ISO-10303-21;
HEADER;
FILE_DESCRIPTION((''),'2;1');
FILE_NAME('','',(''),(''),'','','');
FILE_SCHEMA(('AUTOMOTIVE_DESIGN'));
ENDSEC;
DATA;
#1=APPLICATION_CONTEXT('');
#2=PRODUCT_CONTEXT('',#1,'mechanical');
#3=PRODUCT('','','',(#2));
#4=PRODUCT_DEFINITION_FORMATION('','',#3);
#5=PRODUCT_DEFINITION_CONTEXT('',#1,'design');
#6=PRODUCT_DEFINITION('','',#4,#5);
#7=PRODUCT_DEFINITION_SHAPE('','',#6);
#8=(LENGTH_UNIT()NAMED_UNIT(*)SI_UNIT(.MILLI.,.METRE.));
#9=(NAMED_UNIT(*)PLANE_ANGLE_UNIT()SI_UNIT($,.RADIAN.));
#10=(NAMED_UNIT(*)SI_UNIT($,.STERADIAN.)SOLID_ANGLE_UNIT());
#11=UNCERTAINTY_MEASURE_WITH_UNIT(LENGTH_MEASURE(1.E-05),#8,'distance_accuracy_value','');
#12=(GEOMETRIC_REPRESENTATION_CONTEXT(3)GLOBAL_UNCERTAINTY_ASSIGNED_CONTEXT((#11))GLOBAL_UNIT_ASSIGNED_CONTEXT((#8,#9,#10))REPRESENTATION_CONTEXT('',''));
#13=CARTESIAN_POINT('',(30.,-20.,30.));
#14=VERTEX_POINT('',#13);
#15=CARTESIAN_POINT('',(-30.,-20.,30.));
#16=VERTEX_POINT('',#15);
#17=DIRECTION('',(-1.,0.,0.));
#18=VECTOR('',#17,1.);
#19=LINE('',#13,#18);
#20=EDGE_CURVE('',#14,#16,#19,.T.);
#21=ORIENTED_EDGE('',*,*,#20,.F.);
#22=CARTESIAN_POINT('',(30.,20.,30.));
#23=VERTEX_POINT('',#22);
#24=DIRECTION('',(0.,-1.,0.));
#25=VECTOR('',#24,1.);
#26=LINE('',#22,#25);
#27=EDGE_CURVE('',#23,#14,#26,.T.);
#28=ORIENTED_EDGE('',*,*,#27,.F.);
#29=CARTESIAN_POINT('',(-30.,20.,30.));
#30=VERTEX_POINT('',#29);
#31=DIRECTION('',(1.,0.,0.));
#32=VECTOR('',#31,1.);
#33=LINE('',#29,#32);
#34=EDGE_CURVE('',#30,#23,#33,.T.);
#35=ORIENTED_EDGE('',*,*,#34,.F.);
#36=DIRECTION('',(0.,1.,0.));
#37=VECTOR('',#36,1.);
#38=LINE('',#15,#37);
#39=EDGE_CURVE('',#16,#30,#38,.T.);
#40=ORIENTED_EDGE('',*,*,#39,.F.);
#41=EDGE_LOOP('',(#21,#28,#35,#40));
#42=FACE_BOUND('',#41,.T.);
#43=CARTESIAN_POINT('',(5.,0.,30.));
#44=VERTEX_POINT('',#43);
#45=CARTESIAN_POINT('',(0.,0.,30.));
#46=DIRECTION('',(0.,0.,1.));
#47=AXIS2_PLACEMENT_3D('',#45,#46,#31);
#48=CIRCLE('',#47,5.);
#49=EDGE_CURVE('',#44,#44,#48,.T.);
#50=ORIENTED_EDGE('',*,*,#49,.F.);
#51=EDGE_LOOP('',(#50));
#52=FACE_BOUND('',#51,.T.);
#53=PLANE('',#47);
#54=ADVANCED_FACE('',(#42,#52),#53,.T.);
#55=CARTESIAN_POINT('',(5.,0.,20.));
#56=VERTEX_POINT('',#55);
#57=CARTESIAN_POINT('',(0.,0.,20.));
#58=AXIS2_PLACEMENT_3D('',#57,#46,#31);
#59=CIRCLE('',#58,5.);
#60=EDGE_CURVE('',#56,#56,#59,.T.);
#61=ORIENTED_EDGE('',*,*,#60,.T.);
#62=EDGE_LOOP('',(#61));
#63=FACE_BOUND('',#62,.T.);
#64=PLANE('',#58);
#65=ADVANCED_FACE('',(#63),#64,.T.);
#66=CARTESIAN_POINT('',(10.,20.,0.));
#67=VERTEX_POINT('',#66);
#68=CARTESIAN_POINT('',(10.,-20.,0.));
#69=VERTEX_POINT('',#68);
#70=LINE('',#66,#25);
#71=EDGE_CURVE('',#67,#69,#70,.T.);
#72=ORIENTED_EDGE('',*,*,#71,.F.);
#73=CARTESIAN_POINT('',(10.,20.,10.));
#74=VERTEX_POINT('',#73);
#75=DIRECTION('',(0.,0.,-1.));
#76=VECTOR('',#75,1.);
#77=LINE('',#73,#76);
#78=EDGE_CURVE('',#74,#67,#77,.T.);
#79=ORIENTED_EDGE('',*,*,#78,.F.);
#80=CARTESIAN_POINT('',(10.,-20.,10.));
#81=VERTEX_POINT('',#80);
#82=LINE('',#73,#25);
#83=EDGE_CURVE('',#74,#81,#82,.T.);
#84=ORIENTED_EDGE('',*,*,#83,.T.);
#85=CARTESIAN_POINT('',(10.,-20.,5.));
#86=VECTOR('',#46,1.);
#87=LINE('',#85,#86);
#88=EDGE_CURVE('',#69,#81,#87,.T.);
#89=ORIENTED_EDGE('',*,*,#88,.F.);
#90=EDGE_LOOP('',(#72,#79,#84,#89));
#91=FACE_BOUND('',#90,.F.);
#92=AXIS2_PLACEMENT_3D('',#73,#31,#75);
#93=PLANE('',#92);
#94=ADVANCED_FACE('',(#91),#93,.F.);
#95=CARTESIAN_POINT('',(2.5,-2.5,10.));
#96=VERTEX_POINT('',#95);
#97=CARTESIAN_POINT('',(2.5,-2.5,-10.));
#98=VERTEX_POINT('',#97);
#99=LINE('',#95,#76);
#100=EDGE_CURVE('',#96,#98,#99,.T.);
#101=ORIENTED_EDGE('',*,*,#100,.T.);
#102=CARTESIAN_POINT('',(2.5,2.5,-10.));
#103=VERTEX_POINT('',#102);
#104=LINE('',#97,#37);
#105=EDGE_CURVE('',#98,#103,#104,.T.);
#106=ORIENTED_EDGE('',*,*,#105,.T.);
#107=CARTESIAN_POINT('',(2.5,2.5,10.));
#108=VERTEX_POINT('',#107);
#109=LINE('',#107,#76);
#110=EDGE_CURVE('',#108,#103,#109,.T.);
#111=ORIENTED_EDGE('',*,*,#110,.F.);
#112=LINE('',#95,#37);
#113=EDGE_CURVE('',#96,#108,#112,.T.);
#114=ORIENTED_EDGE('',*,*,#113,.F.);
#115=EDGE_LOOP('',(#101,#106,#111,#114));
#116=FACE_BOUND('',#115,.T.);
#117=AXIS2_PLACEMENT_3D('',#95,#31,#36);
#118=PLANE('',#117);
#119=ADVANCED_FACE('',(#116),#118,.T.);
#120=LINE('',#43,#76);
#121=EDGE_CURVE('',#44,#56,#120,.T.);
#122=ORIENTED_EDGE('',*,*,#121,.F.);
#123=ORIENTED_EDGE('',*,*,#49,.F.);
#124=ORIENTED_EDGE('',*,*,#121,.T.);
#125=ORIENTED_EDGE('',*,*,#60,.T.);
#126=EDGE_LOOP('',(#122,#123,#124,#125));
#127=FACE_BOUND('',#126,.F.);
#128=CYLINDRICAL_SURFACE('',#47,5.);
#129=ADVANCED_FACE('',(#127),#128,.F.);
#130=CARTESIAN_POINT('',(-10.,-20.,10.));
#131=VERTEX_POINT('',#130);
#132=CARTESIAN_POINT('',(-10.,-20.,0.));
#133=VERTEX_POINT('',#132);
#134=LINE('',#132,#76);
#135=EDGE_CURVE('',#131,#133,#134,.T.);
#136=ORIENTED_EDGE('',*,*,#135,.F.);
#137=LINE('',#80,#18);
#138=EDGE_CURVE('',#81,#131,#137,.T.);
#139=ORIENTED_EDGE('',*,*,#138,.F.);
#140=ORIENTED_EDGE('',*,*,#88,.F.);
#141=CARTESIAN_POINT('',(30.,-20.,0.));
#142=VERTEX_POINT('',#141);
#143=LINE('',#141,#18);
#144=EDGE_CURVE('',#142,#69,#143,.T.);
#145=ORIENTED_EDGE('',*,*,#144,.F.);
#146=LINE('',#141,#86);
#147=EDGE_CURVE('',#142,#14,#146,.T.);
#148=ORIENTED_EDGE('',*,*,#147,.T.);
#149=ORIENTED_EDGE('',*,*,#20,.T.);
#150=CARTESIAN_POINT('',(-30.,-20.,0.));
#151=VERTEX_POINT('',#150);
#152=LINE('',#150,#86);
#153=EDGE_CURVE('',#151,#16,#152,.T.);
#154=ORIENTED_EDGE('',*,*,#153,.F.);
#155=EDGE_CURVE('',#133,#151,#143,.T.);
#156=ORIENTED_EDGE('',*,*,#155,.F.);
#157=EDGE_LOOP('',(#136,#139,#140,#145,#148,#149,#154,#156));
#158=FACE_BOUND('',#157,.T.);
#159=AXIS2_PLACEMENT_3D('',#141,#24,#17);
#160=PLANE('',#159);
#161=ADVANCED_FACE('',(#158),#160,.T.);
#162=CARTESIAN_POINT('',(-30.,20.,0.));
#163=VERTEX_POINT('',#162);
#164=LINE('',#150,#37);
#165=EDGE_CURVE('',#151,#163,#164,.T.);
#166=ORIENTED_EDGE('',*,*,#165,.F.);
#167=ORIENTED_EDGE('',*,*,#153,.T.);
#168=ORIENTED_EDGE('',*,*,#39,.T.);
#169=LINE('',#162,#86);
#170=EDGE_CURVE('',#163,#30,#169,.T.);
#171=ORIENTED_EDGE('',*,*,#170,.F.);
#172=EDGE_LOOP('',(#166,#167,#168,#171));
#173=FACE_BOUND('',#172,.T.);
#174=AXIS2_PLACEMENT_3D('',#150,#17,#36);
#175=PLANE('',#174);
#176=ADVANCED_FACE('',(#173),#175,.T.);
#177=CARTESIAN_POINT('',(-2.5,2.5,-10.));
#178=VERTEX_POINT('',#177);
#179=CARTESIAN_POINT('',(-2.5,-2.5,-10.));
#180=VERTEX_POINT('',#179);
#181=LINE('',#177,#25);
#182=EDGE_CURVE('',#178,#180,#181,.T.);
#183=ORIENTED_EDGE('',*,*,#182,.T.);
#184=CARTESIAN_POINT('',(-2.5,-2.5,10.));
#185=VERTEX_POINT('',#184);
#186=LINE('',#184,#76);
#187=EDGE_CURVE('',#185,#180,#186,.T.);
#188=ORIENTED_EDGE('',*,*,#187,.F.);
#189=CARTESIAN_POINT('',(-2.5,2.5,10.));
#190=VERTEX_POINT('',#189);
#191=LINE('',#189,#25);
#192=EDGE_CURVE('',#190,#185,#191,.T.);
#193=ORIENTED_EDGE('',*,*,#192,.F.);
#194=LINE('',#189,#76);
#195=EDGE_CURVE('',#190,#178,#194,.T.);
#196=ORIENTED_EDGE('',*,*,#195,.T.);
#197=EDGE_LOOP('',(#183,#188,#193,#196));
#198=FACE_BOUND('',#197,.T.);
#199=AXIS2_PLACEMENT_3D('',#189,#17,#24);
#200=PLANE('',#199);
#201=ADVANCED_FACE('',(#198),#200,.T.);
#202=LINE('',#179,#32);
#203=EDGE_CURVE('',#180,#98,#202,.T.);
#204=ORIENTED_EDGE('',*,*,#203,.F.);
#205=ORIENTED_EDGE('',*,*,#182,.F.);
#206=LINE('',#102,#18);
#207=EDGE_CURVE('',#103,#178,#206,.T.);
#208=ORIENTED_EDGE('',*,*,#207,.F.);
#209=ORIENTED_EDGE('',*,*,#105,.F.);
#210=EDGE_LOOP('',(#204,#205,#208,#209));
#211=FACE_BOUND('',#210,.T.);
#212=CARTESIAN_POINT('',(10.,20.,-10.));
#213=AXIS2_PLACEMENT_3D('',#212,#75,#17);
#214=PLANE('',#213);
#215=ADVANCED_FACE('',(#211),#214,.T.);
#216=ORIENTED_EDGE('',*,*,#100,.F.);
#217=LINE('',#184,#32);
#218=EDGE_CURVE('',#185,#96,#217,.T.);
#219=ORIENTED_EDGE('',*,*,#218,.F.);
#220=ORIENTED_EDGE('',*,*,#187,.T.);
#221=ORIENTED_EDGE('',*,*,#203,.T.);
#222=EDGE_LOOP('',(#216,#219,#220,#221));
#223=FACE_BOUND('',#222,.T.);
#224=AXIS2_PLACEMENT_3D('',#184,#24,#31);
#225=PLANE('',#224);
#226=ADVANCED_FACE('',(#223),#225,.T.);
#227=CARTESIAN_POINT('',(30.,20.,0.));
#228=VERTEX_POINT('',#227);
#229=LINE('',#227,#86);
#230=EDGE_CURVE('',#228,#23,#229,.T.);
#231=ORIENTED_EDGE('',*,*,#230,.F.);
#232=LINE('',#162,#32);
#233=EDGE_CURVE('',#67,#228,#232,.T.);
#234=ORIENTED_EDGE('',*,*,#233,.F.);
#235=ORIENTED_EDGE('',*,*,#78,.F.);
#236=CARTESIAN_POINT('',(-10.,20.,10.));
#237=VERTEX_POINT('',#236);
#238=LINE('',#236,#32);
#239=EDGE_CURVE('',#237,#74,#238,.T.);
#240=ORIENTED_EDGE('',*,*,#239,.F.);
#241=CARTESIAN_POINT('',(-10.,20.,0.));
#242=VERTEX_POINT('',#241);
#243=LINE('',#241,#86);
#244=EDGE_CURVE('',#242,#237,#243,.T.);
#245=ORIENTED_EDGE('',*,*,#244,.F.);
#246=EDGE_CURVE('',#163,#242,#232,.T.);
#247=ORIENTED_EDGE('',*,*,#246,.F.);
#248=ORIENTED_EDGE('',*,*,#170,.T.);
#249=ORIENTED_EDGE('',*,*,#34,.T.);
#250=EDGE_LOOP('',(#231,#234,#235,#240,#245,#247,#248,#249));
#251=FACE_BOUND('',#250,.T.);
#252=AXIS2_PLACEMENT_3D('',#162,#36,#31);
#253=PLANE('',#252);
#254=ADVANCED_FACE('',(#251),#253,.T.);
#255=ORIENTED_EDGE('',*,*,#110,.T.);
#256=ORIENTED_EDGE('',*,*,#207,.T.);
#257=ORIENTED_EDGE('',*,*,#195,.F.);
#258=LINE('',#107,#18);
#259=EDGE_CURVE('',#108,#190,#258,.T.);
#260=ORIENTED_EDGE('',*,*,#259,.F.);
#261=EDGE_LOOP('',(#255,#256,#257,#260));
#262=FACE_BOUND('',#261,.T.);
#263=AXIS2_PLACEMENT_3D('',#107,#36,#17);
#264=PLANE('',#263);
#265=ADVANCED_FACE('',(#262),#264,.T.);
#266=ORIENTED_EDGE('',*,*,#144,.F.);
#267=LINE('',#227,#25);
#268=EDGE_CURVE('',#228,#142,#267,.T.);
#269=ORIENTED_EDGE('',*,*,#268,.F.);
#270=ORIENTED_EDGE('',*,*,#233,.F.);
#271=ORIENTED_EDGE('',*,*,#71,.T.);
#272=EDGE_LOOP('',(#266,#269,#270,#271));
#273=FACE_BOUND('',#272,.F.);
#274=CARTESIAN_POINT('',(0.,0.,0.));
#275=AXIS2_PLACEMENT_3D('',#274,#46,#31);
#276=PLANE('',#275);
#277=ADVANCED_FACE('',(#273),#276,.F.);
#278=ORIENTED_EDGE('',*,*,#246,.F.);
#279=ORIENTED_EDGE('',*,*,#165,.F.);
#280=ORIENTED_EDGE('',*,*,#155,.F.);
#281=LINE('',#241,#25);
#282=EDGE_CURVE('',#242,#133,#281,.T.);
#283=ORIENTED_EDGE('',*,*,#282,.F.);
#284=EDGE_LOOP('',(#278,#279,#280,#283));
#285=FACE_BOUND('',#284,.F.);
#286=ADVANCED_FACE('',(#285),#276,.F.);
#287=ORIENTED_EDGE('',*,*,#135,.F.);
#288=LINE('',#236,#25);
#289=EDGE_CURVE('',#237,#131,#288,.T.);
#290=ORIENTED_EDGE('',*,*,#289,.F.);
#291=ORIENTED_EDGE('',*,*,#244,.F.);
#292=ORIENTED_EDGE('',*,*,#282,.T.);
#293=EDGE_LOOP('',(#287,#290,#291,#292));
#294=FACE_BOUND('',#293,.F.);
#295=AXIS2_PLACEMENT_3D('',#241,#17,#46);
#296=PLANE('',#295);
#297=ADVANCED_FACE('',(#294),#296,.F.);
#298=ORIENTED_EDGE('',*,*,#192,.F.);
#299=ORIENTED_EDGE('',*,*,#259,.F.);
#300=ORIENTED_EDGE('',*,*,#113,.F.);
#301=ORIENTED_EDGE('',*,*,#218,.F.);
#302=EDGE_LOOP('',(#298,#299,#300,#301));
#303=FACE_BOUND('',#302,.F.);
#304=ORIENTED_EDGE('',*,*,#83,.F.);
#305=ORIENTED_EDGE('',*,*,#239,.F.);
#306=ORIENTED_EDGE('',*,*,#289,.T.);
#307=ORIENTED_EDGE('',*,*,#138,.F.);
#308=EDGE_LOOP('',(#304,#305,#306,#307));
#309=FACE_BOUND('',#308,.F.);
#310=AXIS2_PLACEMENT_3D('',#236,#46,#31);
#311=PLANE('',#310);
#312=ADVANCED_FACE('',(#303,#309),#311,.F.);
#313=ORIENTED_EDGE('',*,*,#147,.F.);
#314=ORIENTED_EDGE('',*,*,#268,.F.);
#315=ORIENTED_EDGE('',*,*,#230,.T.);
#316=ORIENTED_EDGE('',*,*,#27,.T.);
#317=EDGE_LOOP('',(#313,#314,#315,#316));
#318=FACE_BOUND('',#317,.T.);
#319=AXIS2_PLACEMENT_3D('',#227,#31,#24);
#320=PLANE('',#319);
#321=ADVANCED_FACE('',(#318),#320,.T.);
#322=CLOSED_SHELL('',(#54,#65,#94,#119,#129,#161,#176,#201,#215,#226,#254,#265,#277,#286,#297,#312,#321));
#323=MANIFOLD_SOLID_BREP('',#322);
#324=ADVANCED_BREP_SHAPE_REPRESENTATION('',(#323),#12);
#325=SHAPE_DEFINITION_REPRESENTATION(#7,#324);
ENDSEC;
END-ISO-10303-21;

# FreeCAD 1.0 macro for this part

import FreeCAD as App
import Part
import Sketcher
Q = App.Units.Quantity

doc = App.newDocument("Part")
body = doc.addObject("PartDesign::Body", "Body")

sketch1 = body.newObject("Sketcher::SketchObject", "Sketch")
sketch1.AttachmentSupport = (doc.getObject("XY_Plane"), [""])
sketch1.MapMode = "FlatFace"
sketch1.addGeometry(Part.LineSegment(App.Vector(30, 20, 0), App.Vector(-30, 20, 0)), False)
sketch1.addGeometry(Part.LineSegment(App.Vector(-30, 20, 0), App.Vector(-30, -20, 0)), False)
sketch1.addGeometry(Part.LineSegment(App.Vector(-30, -20, 0), App.Vector(30, -20, 0)), False)
sketch1.addGeometry(Part.LineSegment(App.Vector(30, -20, 0), App.Vector(30, 20, 0)), False)
sketch1.addConstraint(Sketcher.Constraint("Coincident", 0, 2, 1, 1))
sketch1.addConstraint(Sketcher.Constraint("Coincident", 1, 2, 2, 1))
sketch1.addConstraint(Sketcher.Constraint("Coincident", 2, 2, 3, 1))
sketch1.addConstraint(Sketcher.Constraint("Coincident", 3, 2, 0, 1))
sketch1.addConstraint(Sketcher.Constraint("Horizontal", 0))
sketch1.addConstraint(Sketcher.Constraint("Vertical", 1))
sketch1.addConstraint(Sketcher.Constraint("Horizontal", 2))
sketch1.addConstraint(Sketcher.Constraint("Vertical", 3))
sketch1.addConstraint(Sketcher.Constraint("Symmetric", 0, 2, 2, 2, -1, 1))
sketch1.addConstraint(Sketcher.Constraint("DistanceX", 0, 2, 0, 1, Q("60 mm")))
sketch1.addConstraint(Sketcher.Constraint("DistanceY", 1, 2, 1, 1, Q("40 mm")))
pad1 = body.newObject("PartDesign::Pad", "Pad")
pad1.Profile = sketch1
pad1.Length = 30

sketch2 = body.newObject("Sketcher::SketchObject", "Sketch001")
sketch2.AttachmentSupport = (doc.getObject("XZ_Plane"), [""])
sketch2.MapMode = "FlatFace"
sketch2.AttachmentOffset = App.Placement(App.Vector(0, 0, -20), App.Rotation())
sketch2.addGeometry(Part.LineSegment(App.Vector(10, 0, 0), App.Vector(-10, 0, 0)), False)
sketch2.addGeometry(Part.LineSegment(App.Vector(-10, 0, 0), App.Vector(-10, 10, 0)), False)
sketch2.addGeometry(Part.LineSegment(App.Vector(-10, 10, 0), App.Vector(10, 10, 0)), False)
sketch2.addGeometry(Part.LineSegment(App.Vector(10, 10, 0), App.Vector(10, 0, 0)), False)
sketch2.addConstraint(Sketcher.Constraint("Coincident", 0, 2, 1, 1))
sketch2.addConstraint(Sketcher.Constraint("Coincident", 1, 2, 2, 1))
sketch2.addConstraint(Sketcher.Constraint("Coincident", 2, 2, 3, 1))
sketch2.addConstraint(Sketcher.Constraint("Coincident", 3, 2, 0, 1))
sketch2.addConstraint(Sketcher.Constraint("Horizontal", 0))
sketch2.addConstraint(Sketcher.Constraint("Vertical", 1))
sketch2.addConstraint(Sketcher.Constraint("Horizontal", 2))
sketch2.addConstraint(Sketcher.Constraint("Vertical", 3))
sketch2.addConstraint(Sketcher.Constraint("Symmetric", 0, 2, 3, 2, -1, 1))
sketch2.addConstraint(Sketcher.Constraint("DistanceX", 0, 2, 0, 1, Q("20 mm")))
sketch2.addConstraint(Sketcher.Constraint("DistanceY", 1, 1, 1, 2, Q("10 mm")))
pocket1 = body.newObject("PartDesign::Pocket", "Pocket")
pocket1.Profile = sketch2
pocket1.Type = "ThroughAll"
pocket1.Reversed = True

sketch3 = body.newObject("Sketcher::SketchObject", "Sketch002")
sketch3.AttachmentSupport = (doc.getObject("XY_Plane"), [""])
sketch3.MapMode = "FlatFace"
sketch3.AttachmentOffset = App.Placement(App.Vector(0, 0, 10), App.Rotation())
sketch3.addGeometry(Part.LineSegment(App.Vector(2.5, -2.5, 0), App.Vector(-2.5, -2.5, 0)), False)
sketch3.addGeometry(Part.LineSegment(App.Vector(-2.5, -2.5, 0), App.Vector(-2.5, 2.5, 0)), False)
sketch3.addGeometry(Part.LineSegment(App.Vector(-2.5, 2.5, 0), App.Vector(2.5, 2.5, 0)), False)
sketch3.addGeometry(Part.LineSegment(App.Vector(2.5, 2.5, 0), App.Vector(2.5, -2.5, 0)), False)
sketch3.addConstraint(Sketcher.Constraint("Coincident", 0, 2, 1, 1))
sketch3.addConstraint(Sketcher.Constraint("Coincident", 1, 2, 2, 1))
sketch3.addConstraint(Sketcher.Constraint("Coincident", 2, 2, 3, 1))
sketch3.addConstraint(Sketcher.Constraint("Coincident", 3, 2, 0, 1))
sketch3.addConstraint(Sketcher.Constraint("Horizontal", 0))
sketch3.addConstraint(Sketcher.Constraint("Vertical", 1))
sketch3.addConstraint(Sketcher.Constraint("Horizontal", 2))
sketch3.addConstraint(Sketcher.Constraint("Vertical", 3))
sketch3.addConstraint(Sketcher.Constraint("Symmetric", 0, 2, 2, 2, -1, 1))
sketch3.addConstraint(Sketcher.Constraint("Equal", 2, 1))
sketch3.addConstraint(Sketcher.Constraint("DistanceX", 0, 2, 0, 1, Q("5 mm")))
pad2 = body.newObject("PartDesign::Pad", "Pad001")
pad2.Profile = sketch3
pad2.Length = 20
pad2.Reversed = True

sketch4 = body.newObject("Sketcher::SketchObject", "Sketch003")
sketch4.AttachmentSupport = (doc.getObject("XY_Plane"), [""])
sketch4.MapMode = "FlatFace"
sketch4.AttachmentOffset = App.Placement(App.Vector(0, 0, 30), App.Rotation())
sketch4.addGeometry(Part.Circle(App.Vector(0, 0, 0), App.Vector(0, 0, 1), 5), False)
sketch4.addConstraint(Sketcher.Constraint("Coincident", 0, 3, -1, 1))
sketch4.addConstraint(Sketcher.Constraint("Diameter", 0, Q("10 mm")))
pocket2 = body.newObject("PartDesign::Pocket", "Pocket001")
pocket2.Profile = sketch4
pocket2.Length = 10

doc.recompute()
